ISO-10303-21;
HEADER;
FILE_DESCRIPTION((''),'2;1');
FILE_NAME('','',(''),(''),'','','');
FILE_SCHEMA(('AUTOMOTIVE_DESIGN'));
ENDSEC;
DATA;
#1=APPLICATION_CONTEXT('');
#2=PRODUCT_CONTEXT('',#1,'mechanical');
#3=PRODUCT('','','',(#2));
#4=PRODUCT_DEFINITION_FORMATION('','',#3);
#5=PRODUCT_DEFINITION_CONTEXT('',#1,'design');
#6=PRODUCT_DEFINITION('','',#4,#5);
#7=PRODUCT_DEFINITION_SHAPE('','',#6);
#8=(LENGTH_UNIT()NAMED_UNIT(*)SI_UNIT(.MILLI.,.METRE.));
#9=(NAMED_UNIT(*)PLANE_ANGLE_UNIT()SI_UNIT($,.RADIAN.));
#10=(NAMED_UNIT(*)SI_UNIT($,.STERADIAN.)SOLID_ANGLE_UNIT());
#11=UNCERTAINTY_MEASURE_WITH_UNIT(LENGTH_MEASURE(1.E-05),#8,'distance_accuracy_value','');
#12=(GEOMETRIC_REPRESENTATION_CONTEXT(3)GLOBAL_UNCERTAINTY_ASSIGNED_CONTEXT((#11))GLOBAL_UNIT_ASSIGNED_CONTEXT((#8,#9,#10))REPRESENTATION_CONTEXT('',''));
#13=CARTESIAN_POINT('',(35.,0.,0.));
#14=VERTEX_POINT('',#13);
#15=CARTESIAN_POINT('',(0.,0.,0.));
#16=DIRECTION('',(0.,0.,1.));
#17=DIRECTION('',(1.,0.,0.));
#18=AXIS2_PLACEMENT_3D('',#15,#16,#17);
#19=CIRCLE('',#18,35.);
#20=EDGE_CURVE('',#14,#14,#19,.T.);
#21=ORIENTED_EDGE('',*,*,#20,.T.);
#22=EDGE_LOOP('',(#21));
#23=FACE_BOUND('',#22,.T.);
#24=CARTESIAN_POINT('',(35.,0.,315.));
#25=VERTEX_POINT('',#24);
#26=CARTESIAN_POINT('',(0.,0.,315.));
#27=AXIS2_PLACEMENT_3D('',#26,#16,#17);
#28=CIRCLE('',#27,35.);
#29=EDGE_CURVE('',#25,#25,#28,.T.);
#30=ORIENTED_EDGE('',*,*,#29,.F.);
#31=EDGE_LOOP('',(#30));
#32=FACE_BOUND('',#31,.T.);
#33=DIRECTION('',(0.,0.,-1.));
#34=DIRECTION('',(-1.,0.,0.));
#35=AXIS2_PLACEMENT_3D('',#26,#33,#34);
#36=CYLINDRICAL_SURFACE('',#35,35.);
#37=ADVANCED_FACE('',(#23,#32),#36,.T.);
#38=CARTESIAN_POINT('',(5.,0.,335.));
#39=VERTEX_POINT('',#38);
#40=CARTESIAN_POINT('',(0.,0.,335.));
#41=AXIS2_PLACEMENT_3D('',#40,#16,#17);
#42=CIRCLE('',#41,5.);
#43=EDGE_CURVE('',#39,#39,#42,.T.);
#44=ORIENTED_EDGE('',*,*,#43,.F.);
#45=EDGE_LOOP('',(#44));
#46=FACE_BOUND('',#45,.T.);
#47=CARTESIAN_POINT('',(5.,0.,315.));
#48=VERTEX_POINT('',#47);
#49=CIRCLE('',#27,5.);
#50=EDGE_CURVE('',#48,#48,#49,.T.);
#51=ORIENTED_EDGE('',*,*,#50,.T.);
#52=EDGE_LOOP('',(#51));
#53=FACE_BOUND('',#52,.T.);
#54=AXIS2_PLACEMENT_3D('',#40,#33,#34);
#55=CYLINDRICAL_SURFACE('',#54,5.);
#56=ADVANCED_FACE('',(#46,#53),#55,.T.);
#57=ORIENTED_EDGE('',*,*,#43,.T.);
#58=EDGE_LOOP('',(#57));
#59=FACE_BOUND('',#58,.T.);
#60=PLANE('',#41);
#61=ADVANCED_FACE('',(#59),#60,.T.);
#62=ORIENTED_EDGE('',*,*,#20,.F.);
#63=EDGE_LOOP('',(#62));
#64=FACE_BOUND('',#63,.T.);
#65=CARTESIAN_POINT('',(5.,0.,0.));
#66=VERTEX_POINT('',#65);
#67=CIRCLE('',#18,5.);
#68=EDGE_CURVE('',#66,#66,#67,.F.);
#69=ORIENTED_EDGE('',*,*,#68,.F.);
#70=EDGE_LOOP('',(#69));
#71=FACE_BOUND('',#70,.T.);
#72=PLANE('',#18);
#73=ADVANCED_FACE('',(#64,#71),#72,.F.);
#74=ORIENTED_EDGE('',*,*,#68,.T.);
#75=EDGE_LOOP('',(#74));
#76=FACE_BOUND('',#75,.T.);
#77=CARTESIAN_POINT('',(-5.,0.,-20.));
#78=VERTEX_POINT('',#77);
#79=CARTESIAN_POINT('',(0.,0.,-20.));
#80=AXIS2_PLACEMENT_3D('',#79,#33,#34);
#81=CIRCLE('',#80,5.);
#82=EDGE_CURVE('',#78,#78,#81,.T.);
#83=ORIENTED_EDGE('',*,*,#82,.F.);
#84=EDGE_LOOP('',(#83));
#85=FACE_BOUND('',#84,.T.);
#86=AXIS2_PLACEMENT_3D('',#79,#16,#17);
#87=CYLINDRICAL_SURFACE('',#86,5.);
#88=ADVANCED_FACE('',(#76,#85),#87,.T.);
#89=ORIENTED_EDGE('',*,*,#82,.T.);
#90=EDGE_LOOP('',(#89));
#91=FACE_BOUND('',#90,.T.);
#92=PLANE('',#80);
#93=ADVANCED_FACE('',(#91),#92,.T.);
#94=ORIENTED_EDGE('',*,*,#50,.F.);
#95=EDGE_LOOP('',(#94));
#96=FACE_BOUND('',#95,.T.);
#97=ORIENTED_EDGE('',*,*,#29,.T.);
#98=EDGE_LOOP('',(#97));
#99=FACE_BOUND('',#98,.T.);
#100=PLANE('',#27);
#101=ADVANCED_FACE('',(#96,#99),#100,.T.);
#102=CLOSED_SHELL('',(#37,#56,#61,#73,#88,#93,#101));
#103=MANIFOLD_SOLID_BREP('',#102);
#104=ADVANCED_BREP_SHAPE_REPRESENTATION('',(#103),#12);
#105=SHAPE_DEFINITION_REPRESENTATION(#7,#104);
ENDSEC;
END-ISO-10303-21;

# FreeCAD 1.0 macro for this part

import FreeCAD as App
import Part
import Sketcher

V = App.Vector
Q = App.Units.Quantity

doc = App.newDocument("Part")
body = doc.addObject("PartDesign::Body", "Body")

# Sketch on XY plane
sketch1 = body.newObject("Sketcher::SketchObject", "Sketch")
sketch1.AttachmentSupport = (doc.getObject("XY_Plane"), [""])
sketch1.MapMode = "FlatFace"
sketch1.addGeometry(Part.Circle(V(0, 0, 0), V(0, 0, 1), 35), False)
sketch1.addConstraint(Sketcher.Constraint("Coincident", 0, 3, -1, 1))
sketch1.addConstraint(Sketcher.Constraint("Diameter", 0, Q("70 mm")))
pad1 = body.newObject("PartDesign::Pad", "Pad")
pad1.Profile = sketch1
pad1.Length = 315

# Sketch on XY plane
sketch2 = body.newObject("Sketcher::SketchObject", "Sketch001")
sketch2.AttachmentSupport = (doc.getObject("XY_Plane"), [""])
sketch2.MapMode = "FlatFace"
sketch2.AttachmentOffset = App.Placement(V(0, 0, 315), App.Rotation())
sketch2.addGeometry(Part.Circle(V(0, 0, 0), V(0, 0, 1), 5), False)
sketch2.addConstraint(Sketcher.Constraint("Coincident", 0, 3, -1, 1))
sketch2.addConstraint(Sketcher.Constraint("Diameter", 0, Q("10 mm")))
pad2 = body.newObject("PartDesign::Pad", "Pad001")
pad2.Profile = sketch2
pad2.Length = 20

# Sketch on XY plane
sketch3 = body.newObject("Sketcher::SketchObject", "Sketch002")
sketch3.AttachmentSupport = (doc.getObject("XY_Plane"), [""])
sketch3.MapMode = "FlatFace"
sketch3.addGeometry(Part.Circle(V(0, 0, 0), V(0, 0, 1), 5), False)
sketch3.addConstraint(Sketcher.Constraint("Coincident", 0, 3, -1, 1))
sketch3.addConstraint(Sketcher.Constraint("Diameter", 0, Q("10 mm")))
pad3 = body.newObject("PartDesign::Pad", "Pad002")
pad3.Profile = sketch3
pad3.Length = 20
pad3.Reversed = True

doc.recompute()
